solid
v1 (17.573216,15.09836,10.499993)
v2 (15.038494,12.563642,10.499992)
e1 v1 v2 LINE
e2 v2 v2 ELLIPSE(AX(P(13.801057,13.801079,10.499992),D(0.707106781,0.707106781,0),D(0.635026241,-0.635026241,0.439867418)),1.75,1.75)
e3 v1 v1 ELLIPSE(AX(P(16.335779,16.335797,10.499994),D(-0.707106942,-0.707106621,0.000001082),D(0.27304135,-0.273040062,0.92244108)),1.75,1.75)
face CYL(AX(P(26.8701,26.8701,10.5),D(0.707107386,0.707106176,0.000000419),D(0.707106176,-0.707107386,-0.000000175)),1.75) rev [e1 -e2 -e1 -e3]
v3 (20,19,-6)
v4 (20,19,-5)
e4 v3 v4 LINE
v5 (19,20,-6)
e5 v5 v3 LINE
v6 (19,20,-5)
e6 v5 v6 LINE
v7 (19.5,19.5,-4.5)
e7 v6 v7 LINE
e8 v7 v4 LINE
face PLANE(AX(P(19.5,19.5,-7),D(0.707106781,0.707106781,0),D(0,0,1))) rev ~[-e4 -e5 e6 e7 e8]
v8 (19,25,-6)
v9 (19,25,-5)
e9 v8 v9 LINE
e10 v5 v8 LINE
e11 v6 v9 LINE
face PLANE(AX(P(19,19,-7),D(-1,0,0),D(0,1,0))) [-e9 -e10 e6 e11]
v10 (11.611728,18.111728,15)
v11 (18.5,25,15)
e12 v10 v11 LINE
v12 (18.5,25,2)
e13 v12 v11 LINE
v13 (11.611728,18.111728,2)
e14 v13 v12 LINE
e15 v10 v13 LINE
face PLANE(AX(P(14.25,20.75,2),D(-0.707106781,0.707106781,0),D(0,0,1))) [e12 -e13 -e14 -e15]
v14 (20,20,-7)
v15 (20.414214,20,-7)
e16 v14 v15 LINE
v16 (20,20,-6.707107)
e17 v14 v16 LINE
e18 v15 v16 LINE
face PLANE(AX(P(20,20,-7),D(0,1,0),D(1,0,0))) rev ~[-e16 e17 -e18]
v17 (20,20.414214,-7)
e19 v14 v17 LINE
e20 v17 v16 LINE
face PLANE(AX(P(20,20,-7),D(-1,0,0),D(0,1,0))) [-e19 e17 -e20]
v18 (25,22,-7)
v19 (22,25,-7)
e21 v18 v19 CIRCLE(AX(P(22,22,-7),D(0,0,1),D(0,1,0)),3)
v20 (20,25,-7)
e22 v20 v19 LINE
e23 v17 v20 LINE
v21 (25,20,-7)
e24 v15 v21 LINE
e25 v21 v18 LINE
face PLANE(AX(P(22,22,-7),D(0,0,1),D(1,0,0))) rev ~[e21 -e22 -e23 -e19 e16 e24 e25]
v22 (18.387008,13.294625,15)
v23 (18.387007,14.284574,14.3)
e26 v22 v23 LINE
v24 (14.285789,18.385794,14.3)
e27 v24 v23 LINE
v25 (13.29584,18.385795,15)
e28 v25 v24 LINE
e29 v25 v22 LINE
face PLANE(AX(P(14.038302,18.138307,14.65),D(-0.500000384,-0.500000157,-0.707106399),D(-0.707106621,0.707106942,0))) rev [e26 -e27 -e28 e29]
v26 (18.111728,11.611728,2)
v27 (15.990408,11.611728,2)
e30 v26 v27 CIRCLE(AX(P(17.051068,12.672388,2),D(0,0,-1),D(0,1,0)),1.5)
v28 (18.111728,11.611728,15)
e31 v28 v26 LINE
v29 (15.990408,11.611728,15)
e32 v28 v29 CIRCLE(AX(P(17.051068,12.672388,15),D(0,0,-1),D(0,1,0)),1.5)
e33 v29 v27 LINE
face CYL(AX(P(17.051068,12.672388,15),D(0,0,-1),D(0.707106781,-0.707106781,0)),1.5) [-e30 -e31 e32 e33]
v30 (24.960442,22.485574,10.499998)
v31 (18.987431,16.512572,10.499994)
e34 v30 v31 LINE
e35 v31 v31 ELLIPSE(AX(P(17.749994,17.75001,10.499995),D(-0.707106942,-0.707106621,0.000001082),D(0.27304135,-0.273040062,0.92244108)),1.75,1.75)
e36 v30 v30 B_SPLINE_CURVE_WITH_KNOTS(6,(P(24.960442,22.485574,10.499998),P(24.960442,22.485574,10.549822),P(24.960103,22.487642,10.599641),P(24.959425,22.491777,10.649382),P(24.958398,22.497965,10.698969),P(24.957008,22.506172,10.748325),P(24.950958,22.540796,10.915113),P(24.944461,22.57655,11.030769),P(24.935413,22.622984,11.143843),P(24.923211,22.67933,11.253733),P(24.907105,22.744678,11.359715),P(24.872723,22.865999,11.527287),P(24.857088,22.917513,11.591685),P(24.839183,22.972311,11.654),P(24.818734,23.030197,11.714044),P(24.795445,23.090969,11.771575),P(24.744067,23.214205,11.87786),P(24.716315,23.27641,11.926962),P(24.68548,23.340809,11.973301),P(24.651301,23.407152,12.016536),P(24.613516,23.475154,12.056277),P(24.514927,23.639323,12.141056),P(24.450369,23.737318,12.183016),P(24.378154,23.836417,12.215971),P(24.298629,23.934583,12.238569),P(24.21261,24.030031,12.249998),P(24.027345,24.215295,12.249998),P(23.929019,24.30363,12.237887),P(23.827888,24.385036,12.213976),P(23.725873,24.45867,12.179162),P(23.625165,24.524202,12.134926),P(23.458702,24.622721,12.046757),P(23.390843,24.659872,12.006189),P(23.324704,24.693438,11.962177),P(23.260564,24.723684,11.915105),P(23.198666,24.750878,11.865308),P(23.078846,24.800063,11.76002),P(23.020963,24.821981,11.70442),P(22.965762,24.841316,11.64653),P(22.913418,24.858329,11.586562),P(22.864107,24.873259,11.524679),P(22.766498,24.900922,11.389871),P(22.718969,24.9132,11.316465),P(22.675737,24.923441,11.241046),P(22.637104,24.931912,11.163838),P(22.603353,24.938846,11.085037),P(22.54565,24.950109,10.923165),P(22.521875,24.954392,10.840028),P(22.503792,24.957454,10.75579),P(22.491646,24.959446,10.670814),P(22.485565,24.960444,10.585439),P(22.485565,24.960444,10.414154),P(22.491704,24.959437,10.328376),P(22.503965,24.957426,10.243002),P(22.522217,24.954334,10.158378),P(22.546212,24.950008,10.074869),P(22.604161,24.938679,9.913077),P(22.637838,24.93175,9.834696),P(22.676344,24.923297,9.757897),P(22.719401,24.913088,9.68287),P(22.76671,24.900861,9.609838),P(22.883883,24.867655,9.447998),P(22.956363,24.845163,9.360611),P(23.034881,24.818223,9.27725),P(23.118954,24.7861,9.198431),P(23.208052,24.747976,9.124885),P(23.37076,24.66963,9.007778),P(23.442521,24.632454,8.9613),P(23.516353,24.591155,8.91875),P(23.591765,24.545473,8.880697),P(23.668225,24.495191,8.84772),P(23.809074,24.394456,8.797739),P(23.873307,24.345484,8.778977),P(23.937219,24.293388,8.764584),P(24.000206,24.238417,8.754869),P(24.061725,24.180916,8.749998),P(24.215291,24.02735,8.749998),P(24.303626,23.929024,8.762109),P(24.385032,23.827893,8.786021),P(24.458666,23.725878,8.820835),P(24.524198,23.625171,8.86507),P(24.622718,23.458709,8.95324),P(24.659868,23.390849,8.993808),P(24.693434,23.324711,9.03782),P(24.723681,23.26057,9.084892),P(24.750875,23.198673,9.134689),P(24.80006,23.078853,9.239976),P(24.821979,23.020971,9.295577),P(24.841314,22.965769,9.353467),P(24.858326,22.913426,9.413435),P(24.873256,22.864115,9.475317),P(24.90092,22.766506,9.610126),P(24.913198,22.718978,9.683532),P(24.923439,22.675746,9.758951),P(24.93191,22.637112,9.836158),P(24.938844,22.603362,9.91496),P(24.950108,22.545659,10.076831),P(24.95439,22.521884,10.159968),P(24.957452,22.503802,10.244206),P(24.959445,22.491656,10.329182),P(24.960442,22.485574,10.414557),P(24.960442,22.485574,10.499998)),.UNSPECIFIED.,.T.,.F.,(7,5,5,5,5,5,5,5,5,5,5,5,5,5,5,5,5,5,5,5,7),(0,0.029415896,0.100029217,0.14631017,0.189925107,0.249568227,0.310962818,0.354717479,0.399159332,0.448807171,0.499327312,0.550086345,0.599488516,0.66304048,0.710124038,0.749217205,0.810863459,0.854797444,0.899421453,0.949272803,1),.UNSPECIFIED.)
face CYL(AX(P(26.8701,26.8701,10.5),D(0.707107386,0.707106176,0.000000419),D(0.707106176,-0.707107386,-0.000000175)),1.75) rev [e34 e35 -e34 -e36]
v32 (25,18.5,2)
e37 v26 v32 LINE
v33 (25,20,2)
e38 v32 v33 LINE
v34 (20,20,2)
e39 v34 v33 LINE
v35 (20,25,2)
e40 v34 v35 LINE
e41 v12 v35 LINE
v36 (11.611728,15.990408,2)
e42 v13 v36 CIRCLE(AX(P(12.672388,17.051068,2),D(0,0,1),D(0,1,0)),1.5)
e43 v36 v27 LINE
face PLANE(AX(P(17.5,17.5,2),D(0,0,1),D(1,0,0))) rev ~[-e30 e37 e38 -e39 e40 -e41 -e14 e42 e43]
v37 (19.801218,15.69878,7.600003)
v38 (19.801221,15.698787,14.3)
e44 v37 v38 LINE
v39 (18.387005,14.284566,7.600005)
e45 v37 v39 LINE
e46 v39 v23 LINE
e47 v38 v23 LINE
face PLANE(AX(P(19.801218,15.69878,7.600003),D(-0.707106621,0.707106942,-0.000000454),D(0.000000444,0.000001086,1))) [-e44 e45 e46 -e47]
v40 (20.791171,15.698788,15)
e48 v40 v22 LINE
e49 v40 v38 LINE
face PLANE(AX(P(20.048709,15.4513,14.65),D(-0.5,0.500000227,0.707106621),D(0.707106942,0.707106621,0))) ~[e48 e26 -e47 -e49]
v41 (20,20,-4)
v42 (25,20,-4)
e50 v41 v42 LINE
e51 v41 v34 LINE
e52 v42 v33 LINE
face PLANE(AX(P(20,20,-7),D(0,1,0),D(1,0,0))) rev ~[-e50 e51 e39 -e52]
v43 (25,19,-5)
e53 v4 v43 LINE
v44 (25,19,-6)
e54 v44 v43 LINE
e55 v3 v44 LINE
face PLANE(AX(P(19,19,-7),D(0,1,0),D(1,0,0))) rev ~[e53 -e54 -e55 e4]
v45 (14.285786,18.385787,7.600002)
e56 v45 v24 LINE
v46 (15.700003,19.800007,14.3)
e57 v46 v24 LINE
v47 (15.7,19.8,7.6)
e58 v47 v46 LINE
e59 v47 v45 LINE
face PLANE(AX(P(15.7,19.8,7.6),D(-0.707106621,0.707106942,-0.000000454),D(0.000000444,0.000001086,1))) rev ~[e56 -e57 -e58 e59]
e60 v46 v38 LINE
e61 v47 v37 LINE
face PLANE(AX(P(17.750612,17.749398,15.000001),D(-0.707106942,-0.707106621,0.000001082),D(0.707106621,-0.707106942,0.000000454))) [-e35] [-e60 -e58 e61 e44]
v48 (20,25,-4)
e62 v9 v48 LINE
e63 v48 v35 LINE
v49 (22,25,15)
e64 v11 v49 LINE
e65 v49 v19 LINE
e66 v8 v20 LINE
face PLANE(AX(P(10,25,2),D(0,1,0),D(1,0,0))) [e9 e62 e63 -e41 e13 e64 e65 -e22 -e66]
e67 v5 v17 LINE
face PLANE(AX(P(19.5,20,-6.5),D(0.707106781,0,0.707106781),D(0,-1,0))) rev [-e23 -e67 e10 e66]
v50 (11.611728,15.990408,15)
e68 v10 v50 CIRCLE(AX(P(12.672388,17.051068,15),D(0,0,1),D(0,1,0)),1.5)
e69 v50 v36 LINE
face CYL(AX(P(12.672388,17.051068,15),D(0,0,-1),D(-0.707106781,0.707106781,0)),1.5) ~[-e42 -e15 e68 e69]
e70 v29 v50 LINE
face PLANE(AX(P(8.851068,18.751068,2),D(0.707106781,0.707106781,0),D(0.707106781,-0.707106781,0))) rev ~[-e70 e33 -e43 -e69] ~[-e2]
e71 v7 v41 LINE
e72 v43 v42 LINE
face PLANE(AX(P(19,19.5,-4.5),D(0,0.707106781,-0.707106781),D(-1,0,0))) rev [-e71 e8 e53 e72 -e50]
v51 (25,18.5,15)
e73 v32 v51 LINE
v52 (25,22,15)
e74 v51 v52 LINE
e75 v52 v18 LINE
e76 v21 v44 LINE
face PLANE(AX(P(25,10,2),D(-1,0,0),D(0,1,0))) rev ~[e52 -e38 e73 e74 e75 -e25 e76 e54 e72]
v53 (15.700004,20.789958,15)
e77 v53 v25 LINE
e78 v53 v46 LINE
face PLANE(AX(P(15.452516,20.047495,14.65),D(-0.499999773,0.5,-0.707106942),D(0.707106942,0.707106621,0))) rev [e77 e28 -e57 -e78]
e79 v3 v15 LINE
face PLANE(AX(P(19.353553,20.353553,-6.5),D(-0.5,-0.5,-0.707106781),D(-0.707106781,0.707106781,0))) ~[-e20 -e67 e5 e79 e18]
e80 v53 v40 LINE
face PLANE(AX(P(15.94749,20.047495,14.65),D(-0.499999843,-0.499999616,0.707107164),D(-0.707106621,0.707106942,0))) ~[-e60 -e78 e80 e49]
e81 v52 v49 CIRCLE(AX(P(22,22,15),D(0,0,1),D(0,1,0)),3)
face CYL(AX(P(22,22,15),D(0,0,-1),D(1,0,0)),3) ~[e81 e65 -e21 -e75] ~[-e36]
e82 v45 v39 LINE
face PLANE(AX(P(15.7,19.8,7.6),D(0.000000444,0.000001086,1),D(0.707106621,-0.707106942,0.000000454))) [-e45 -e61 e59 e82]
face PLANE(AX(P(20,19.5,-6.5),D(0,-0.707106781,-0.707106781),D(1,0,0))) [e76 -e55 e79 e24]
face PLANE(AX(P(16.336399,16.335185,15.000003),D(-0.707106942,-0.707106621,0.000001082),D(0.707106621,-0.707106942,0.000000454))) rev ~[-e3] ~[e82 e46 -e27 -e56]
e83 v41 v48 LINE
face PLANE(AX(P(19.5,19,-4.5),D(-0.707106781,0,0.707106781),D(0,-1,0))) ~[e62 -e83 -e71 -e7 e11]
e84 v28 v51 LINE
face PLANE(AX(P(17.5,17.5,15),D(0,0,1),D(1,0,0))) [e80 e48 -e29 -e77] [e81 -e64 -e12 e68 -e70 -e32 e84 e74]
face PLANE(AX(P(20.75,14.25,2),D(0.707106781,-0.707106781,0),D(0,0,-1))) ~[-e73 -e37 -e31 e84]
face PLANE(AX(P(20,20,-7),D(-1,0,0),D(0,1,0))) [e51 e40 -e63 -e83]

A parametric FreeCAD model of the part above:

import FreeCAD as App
import Part
import Sketcher
from FreeCAD import Vector


def edges_at(feature, points):
    """Names of the edges that pass closest to the given points."""
    edges = feature.Shape.Edges
    near = lambda p: min(range(len(edges)), key=lambda i: edges[i].distToShape(Part.Vertex(*p))[0])
    return sorted({f"Edge{near(p) + 1}" for p in points})


def add_polygon(sketch, points):
    """Adds a closed chain of lines whose ends are joined by coincident constraints."""
    first, n = sketch.GeometryCount, len(points)
    for a, b in zip(points, points[1:] + points[:1]):
        sketch.addGeometry(Part.LineSegment(App.Vector(*a, 0), App.Vector(*b, 0)), False)
    for i in range(n):
        sketch.addConstraint(Sketcher.Constraint("Coincident", first + i, 2, first + (i + 1) % n, 1))

doc = App.newDocument("Part")
body = doc.addObject("PartDesign::Body", "Body")

sketch1 = body.newObject("Sketcher::SketchObject", "Sketch")
sketch1.AttachmentSupport = (doc.getObject("XY_Plane"), [""])
sketch1.MapMode = "FlatFace"
add_polygon(sketch1, [(0, 15), (0, 0), (6, 0), (6, 15)])
sketch1.addConstraint([
    Sketcher.Constraint("Vertical", 0),
    Sketcher.Constraint("Horizontal", 1),
    Sketcher.Constraint("Vertical", 2),
    Sketcher.Constraint("Horizontal", 3),
    Sketcher.Constraint("Coincident", 0, 2, -1, 1),
    Sketcher.Constraint("DistanceX", 1, 1, 1, 2, 5.8),
    Sketcher.Constraint("DistanceY", 0, 2, 0, 1, 14.8),
])
pad1 = body.newObject("PartDesign::Pad", "Pad")
pad1.Profile = sketch1
pad1.Length = 2
body2 = doc.addObject("PartDesign::Body", "Body001")
doc.recompute()

body.Placement = App.Placement(Vector(0, 0, 0), App.Rotation(Vector(1, 0, 0), 89.999938))
boolean = body2.newObject("PartDesign::Boolean", "Boolean")
boolean.Type = "Fuse"
boolean.addObjects([body])
body3 = doc.addObject("PartDesign::Body", "Body002")
doc.recompute()

body2.Placement = App.Placement(Vector(0, 0, 0), App.Rotation(Vector(0, 1, 0), 359.999974))
boolean2 = body3.newObject("PartDesign::Boolean", "Boolean001")
boolean2.Type = "Fuse"
boolean2.addObjects([body2])
body4 = doc.addObject("PartDesign::Body", "Body003")
doc.recompute()

body3.Placement = App.Placement(Vector(15.7, 19.8, 7.6), App.Rotation(Vector(0, 0, 1), 314.999987))
boolean3 = body4.newObject("PartDesign::Boolean", "Boolean002")
boolean3.Type = "Fuse"
boolean3.addObjects([body3])
body5 = doc.addObject("PartDesign::Body", "Body004")

sketch2 = body5.newObject("Sketcher::SketchObject", "Sketch001")
sketch2.AttachmentSupport = (doc.getObject("XY_Plane004"), [""])
sketch2.MapMode = "FlatFace"
sketch2.addGeometry(Part.Circle(Vector(0, 0, 0), Vector(0, 0, 1), 1.8), False)
sketch2.addConstraint([
    Sketcher.Constraint("Coincident", 0, 3, -1, 1),
    Sketcher.Constraint("Diameter", 0, 3.5),
])
pad2 = body5.newObject("PartDesign::Pad", "Pad001")
pad2.Profile = sketch2
pad2.Length = 33
body6 = doc.addObject("PartDesign::Body", "Body005")
doc.recompute()

body5.Placement = App.Placement(Vector(0, 0, 0), App.Rotation(Vector(1, 0, 0), 90.000024))
boolean4 = body6.newObject("PartDesign::Boolean", "Boolean003")
boolean4.Type = "Fuse"
boolean4.addObjects([body5])
body7 = doc.addObject("PartDesign::Body", "Body006")
doc.recompute()

body6.Placement = App.Placement(Vector(0, 0, 0), App.Rotation(Vector(0, 1, 0), 0.00001))
boolean5 = body7.newObject("PartDesign::Boolean", "Boolean004")
boolean5.Type = "Fuse"
boolean5.addObjects([body6])
body8 = doc.addObject("PartDesign::Body", "Body007")
doc.recompute()

body7.Placement = App.Placement(Vector(26.8701, 26.8701, 10.5), App.Rotation(Vector(0, 0, 1), 314.999951))
boolean6 = body8.newObject("PartDesign::Boolean", "Boolean005")
boolean6.Type = "Fuse"
boolean6.addObjects([body7])
doc.recompute()

boolean7 = body8.newObject("PartDesign::Boolean", "Boolean006")
boolean7.Type = "Fuse"
boolean7.addObjects([body4])
body9 = doc.addObject("PartDesign::Body", "Body008")

sketch3 = body9.newObject("Sketcher::SketchObject", "Sketch002")
sketch3.AttachmentSupport = (doc.getObject("XY_Plane008"), [""])
sketch3.MapMode = "FlatFace"
sketch3.AttachmentOffset = App.Placement(Vector(0, 0, -7), App.Rotation())
add_polygon(sketch3, [(20, 25), (20, 20), (25, 20), (25, 25)])
sketch3.addConstraint([
    Sketcher.Constraint("Vertical", 0),
    Sketcher.Constraint("Horizontal", 1),
    Sketcher.Constraint("Vertical", 2),
    Sketcher.Constraint("Horizontal", 3),
    Sketcher.Constraint("Equal", 3, 0),
    Sketcher.Constraint("DistanceX", 1, 1, 1, 2, 5.0),
    Sketcher.Constraint("DistanceX", -1, 1, 0, 2, 20.0),
    Sketcher.Constraint("DistanceY", -1, 1, 0, 2, 20.0),
])
pad3 = body9.newObject("PartDesign::Pad", "Pad002")
pad3.Profile = sketch3
pad3.Length = 14
body10 = doc.addObject("PartDesign::Body", "Body009")

sketch4 = body10.newObject("Sketcher::SketchObject", "Sketch003")
sketch4.AttachmentSupport = (doc.getObject("XY_Plane009"), [""])
sketch4.MapMode = "FlatFace"
add_polygon(sketch4, [(0, 10), (0, 0), (14, 0), (14, 10)])
sketch4.addConstraint([
    Sketcher.Constraint("Vertical", 0),
    Sketcher.Constraint("Horizontal", 1),
    Sketcher.Constraint("Vertical", 2),
    Sketcher.Constraint("Horizontal", 3),
    Sketcher.Constraint("Coincident", 0, 2, -1, 1),
    Sketcher.Constraint("DistanceX", 1, 1, 1, 2, 14.0),
    Sketcher.Constraint("DistanceY", 0, 2, 0, 1, 10.0),
])
pad4 = body10.newObject("PartDesign::Pad", "Pad003")
pad4.Profile = sketch4
pad4.Length = 14
body11 = doc.addObject("PartDesign::Body", "Body010")
doc.recompute()

body10.Placement = App.Placement(Vector(1.78, 11.68, 2), App.Rotation(Vector(0, 0, -1), 45))
boolean8 = body11.newObject("PartDesign::Boolean", "Boolean007")
boolean8.Type = "Fuse"
boolean8.addObjects([body10])
body12 = doc.addObject("PartDesign::Body", "Body011")

sketch5 = body12.newObject("Sketcher::SketchObject", "Sketch004")
sketch5.AttachmentSupport = (doc.getObject("XY_Plane011"), [""])
sketch5.MapMode = "FlatFace"
sketch5.AttachmentOffset = App.Placement(Vector(0, 0, 2), App.Rotation())
add_polygon(sketch5, [(10, 25), (10, 10), (25, 10), (25, 25)])
sketch5.addConstraint([
    Sketcher.Constraint("Vertical", 0),
    Sketcher.Constraint("Horizontal", 1),
    Sketcher.Constraint("Vertical", 2),
    Sketcher.Constraint("Horizontal", 3),
    Sketcher.Constraint("Equal", 3, 0),
    Sketcher.Constraint("DistanceX", 1, 1, 1, 2, 15.0),
    Sketcher.Constraint("DistanceX", -1, 1, 0, 2, 10.0),
    Sketcher.Constraint("DistanceY", -1, 1, 0, 2, 10.0),
])
pad5 = body12.newObject("PartDesign::Pad", "Pad004")
pad5.Profile = sketch5
pad5.Length = 13
doc.recompute()

chamfer = body12.newObject("PartDesign::Chamfer", "Chamfer")
chamfer.Base = (pad5, edges_at(pad5, [(10, 25, 8.5), (25, 10, 8.5)]))
chamfer.Size = 8.5
doc.recompute()

boolean9 = body12.newObject("PartDesign::Boolean", "Boolean008")
boolean9.Type = "Cut"
boolean9.addObjects([body11])
doc.recompute()

fillet = body12.newObject("PartDesign::Fillet", "Fillet")
fillet.Base = (boolean9, edges_at(boolean9, [(10.551, 17.051, 8.5), (17.051, 10.551, 8.5)]))
fillet.Radius = 1.5
body13 = doc.addObject("PartDesign::Body", "Body012")

sketch6 = body13.newObject("Sketcher::SketchObject", "Sketch005")
sketch6.AttachmentSupport = (doc.getObject("XY_Plane012"), [""])
sketch6.MapMode = "FlatFace"
sketch6.AttachmentOffset = App.Placement(Vector(0, 0, -7), App.Rotation())
add_polygon(sketch6, [(19, 25), (19, 19), (25, 19), (25, 25)])
sketch6.addConstraint([
    Sketcher.Constraint("Vertical", 0),
    Sketcher.Constraint("Horizontal", 1),
    Sketcher.Constraint("Vertical", 2),
    Sketcher.Constraint("Horizontal", 3),
    Sketcher.Constraint("Equal", 3, 0),
    Sketcher.Constraint("DistanceX", 1, 1, 1, 2, 6.0),
    Sketcher.Constraint("DistanceX", -1, 1, 0, 2, 19.0),
    Sketcher.Constraint("DistanceY", -1, 1, 0, 2, 19.0),
])
pad6 = body13.newObject("PartDesign::Pad", "Pad005")
pad6.Profile = sketch6
pad6.Length = 3
doc.recompute()

chamfer2 = body13.newObject("PartDesign::Chamfer", "Chamfer001")
chamfer2.Base = (pad6, edges_at(pad6, [(19, 22, -4), (22, 19, -4)]))
chamfer2.Size = 1
doc.recompute()

chamfer3 = body13.newObject("PartDesign::Chamfer", "Chamfer002")
chamfer3.Base = (chamfer2, edges_at(chamfer2, [(19, 19, -6)]))
chamfer3.Size = 1
doc.recompute()

chamfer4 = body13.newObject("PartDesign::Chamfer", "Chamfer003")
chamfer4.Base = (chamfer3, edges_at(chamfer3, [(19, 22.5, -7), (19.5, 19.5, -7), (22.5, 19, -7)]))
chamfer4.Size = 1
doc.recompute()

boolean10 = body13.newObject("PartDesign::Boolean", "Boolean009")
boolean10.Type = "Fuse"
boolean10.addObjects([body9])
doc.recompute()

boolean11 = body13.newObject("PartDesign::Boolean", "Boolean010")
boolean11.Type = "Fuse"
boolean11.addObjects([body12])
doc.recompute()

fillet2 = body13.newObject("PartDesign::Fillet", "Fillet001")
fillet2.Base = (boolean11, edges_at(boolean11, [
    (25, 25, 4),
    (25, 25, 4),
    (25, 25, 4),
    (25, 25, 4),
]))
fillet2.Radius = 3
doc.recompute()

boolean12 = body13.newObject("PartDesign::Boolean", "Boolean011")
boolean12.Type = "Cut"
boolean12.addObjects([body8])
doc.recompute()

chamfer5 = body13.newObject("PartDesign::Chamfer", "Chamfer004")
chamfer5.Base = (boolean12, edges_at(boolean12, [
    (16.336, 16.335, 15),
    (19.094, 14.992, 15),
    (17.751, 17.749, 15),
    (14.993, 19.093, 15),
]))
chamfer5.Size = 0.7

doc.recompute()
